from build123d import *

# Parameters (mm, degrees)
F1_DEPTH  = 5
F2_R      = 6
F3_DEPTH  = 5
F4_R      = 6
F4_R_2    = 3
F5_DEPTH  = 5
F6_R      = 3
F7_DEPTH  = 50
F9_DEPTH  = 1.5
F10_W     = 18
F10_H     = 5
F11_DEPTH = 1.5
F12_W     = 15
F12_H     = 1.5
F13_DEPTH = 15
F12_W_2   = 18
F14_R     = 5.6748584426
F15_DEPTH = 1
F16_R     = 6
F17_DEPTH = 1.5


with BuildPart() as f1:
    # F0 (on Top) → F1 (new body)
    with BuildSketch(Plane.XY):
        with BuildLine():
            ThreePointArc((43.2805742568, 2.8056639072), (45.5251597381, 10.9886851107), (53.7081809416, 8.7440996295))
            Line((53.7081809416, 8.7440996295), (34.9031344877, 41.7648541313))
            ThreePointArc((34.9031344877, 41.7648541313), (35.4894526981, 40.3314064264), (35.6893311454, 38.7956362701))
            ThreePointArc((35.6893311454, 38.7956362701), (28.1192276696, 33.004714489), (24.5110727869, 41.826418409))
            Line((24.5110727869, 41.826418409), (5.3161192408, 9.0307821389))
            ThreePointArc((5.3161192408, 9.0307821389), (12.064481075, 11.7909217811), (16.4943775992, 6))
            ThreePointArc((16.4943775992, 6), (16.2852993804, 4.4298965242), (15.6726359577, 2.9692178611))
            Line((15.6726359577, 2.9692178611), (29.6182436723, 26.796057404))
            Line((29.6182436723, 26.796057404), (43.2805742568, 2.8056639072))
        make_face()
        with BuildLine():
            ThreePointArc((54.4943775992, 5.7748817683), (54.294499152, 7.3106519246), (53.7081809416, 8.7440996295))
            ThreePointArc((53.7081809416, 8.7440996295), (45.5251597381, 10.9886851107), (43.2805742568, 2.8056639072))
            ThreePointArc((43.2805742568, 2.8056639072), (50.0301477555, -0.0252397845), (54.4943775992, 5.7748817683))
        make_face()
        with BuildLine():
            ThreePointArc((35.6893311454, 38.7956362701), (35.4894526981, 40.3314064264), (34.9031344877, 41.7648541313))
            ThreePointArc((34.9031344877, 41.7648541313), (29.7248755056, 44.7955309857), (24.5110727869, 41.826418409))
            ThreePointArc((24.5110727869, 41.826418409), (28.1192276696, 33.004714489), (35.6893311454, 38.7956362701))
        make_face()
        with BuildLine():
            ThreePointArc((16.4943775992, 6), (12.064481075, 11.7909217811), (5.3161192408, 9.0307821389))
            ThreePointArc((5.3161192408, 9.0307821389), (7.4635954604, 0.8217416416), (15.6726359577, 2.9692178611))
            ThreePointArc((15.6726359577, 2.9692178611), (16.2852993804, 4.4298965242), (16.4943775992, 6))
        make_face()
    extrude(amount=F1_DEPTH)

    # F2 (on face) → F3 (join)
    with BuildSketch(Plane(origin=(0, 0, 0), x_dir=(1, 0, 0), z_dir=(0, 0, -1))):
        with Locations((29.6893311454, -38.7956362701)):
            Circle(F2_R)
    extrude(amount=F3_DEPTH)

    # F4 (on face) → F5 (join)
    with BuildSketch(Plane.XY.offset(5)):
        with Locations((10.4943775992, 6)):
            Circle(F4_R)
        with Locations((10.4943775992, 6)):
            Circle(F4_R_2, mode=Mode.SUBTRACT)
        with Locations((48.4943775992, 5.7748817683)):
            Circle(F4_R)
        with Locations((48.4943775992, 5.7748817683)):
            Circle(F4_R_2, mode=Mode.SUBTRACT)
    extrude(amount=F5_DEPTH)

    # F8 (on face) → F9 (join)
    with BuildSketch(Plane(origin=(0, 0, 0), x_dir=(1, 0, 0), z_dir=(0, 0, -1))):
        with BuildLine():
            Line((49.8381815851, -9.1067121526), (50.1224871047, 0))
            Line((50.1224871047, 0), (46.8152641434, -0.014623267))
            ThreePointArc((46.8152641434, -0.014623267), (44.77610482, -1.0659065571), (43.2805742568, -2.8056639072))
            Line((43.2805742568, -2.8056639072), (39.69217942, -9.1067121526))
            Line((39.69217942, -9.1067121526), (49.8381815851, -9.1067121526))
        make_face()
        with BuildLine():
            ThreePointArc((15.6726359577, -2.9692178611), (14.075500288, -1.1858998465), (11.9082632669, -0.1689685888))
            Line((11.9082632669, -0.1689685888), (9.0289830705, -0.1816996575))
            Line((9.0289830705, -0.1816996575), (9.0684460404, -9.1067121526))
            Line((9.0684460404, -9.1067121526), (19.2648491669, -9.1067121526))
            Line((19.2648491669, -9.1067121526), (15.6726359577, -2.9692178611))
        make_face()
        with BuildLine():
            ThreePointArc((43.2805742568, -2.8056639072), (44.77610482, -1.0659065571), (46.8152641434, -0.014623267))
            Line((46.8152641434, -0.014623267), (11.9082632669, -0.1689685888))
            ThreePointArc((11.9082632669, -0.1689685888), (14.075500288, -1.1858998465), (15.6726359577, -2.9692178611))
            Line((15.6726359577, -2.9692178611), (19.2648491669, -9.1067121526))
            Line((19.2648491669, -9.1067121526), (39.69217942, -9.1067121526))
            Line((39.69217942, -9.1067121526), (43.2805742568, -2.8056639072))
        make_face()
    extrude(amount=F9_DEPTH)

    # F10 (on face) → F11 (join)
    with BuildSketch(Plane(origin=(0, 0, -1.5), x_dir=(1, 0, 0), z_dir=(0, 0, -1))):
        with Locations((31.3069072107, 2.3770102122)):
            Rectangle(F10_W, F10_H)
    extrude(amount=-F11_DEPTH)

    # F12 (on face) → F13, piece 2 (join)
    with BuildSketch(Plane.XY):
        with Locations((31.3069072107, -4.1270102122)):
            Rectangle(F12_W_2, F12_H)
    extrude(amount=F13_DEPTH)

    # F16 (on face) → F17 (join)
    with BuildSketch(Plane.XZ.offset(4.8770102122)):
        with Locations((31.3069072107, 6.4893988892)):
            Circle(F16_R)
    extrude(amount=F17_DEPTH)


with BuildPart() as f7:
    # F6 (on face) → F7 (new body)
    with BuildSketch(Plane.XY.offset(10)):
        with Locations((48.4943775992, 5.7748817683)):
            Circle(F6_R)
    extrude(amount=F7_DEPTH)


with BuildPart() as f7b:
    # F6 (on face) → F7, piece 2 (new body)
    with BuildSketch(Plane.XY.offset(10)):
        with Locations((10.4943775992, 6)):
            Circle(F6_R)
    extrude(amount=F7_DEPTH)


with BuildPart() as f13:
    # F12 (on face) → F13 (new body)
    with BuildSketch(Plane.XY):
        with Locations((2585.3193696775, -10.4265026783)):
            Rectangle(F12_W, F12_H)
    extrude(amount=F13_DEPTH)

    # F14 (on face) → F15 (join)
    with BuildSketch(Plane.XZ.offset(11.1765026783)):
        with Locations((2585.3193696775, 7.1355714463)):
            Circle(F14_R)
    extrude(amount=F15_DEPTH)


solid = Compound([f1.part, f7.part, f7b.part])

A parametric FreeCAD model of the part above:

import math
import FreeCAD as App
import Part
import Sketcher
from FreeCAD import Vector
Q = App.Units.Quantity

doc = App.newDocument("Part")
params = doc.addObject("Spreadsheet::Sheet", "Params")
for row, (alias, value) in enumerate([
    ("sketch1_radius", "6 mm"),
    ("sketch1_length", "38 mm"),
    ("pad1_length", "5 mm"),
    ("sketch2_diameter", "12 mm"),
    ("pad2_length", "5 mm"),
    ("sketch3_diameter", "12 mm"),
    ("sketch3_diameter2", "6 mm"),
    ("pad3_length", "5 mm"),
    ("pad4_length", "1.5 mm"),
    ("sketch5_width", "18 mm"),
    ("sketch5_height", "5 mm"),
    ("pad5_length", "1.5 mm"),
    ("sketch6_width", "18 mm"),
    ("sketch6_height", "1.5 mm"),
    ("pad6_length", "15 mm"),
    ("sketch7_diameter", "12 mm"),
    ("pad7_length", "1.5 mm"),
    ("sketch8_diameter", "6 mm"),
    ("pad8_length", "50 mm"),
    ("sketch9_diameter", "6 mm"),
    ("pad9_length", "50 mm"),
    ("sketch10_width", "15 mm"),
    ("sketch10_height", "1.5 mm"),
    ("pad10_length", "15 mm"),
    ("pad11_length", "1 mm"),
], start=1):
    params.set(f"A{row}", alias)
    params.set(f"B{row}", "=" + value)
    params.setAlias(f"B{row}", alias)

body = doc.addObject("PartDesign::Body", "Body")

sketch1 = doc.addObject("Sketcher::SketchObject", "Sketch")
body.addObject(sketch1)
sketch1.AttachmentSupport = (doc.XY_Plane, [""])
sketch1.MapMode = "FlatFace"
sketch1.addGeometry(Part.LineSegment(Vector(53.708181, 8.7441, 0), Vector(34.903134, 41.764854, 0)), False)
sketch1.addGeometry(Part.ArcOfCircle(Part.Circle(Vector(29.689331, 38.795636, 0), Vector(0, 0, 1), 6), math.radians(29.661155), math.radians(149.659994)), False)
sketch1.addGeometry(Part.LineSegment(Vector(24.511073, 41.826418, 0), Vector(5.316119, 9.030782, 0)), False)
sketch1.addGeometry(Part.ArcOfCircle(Part.Circle(Vector(10.494378, 6, 0), Vector(0, 0, 1), 6), math.radians(149.659994), math.radians(329.659994)), False)
sketch1.addGeometry(Part.LineSegment(Vector(15.672636, 2.969218, 0), Vector(29.618244, 26.796057, 0)), False)
sketch1.addGeometry(Part.LineSegment(Vector(29.618244, 26.796057, 0), Vector(43.280574, 2.805664, 0)), False)
sketch1.addGeometry(Part.ArcOfCircle(Part.Circle(Vector(48.494378, 5.774882, 0), Vector(0, 0, 1), 6), math.radians(-150.338845), math.radians(0)), False)
sketch1.addGeometry(Part.ArcOfCircle(Part.Circle(Vector(48.494378, 5.774882, 0), Vector(0, 0, 1), 6), math.radians(0), math.radians(29.661155)), False)
sketch1.addConstraint(Sketcher.Constraint("Tangent", 0, 2, 1, 1))
sketch1.addConstraint(Sketcher.Constraint("Tangent", 1, 2, 2, 1))
sketch1.addConstraint(Sketcher.Constraint("Tangent", 2, 2, 3, 1))
sketch1.addConstraint(Sketcher.Constraint("Tangent", 3, 2, 4, 1))
sketch1.addConstraint(Sketcher.Constraint("Coincident", 4, 2, 5, 1))
sketch1.addConstraint(Sketcher.Constraint("Tangent", 5, 2, 6, 1))
sketch1.addConstraint(Sketcher.Constraint("Tangent", 6, 2, 7, 1))
sketch1.addConstraint(Sketcher.Constraint("Tangent", 7, 2, 0, 1))
sketch1.addConstraint(Sketcher.Constraint("Equal", 1, 3))
sketch1.addConstraint(Sketcher.Constraint("Equal", 3, 6))
sketch1.addConstraint(Sketcher.Constraint("Equal", 6, 7))
sketch1.addConstraint(Sketcher.Constraint("Parallel", 2, 4))
sketch1.addConstraint(Sketcher.Constraint("Parallel", 0, 5))
sketch1.addConstraint(Sketcher.Constraint("Horizontal", 7, 3, 6, 2))
sketch1.addConstraint(Sketcher.Constraint("Equal", 0, 2))
sketch1.addConstraint(Sketcher.Constraint("Radius", 1, Q("6 mm")))
sketch1.addConstraint(Sketcher.Constraint("Distance", 0, Q("38 mm")))
sketch1.addConstraint(Sketcher.Constraint("DistanceY", -1, 1, 3, 3, Q("6 mm")))
sketch1.addConstraint(Sketcher.Constraint("DistanceX", 3, 3, 6, 3, Q("38 mm")))
sketch1.addConstraint(Sketcher.Constraint("Angle", 2, Q("-120.340006 deg")))
sketch1.addConstraint(Sketcher.Constraint("DistanceX", -1, 1, 1, 3, Q("29.689331 mm")))
sketch1.setExpression("Constraints[15]", "Params.sketch1_radius")
sketch1.setExpression("Constraints[16]", "Params.sketch1_length")
pad1 = doc.addObject("PartDesign::Pad", "Pad")
body.addObject(pad1)
pad1.Profile = sketch1
pad1.setExpression("Length", "Params.pad1_length")

sketch2 = doc.addObject("Sketcher::SketchObject", "Sketch001")
body.addObject(sketch2)
sketch2.AttachmentSupport = (doc.XY_Plane, [""])
sketch2.MapMode = "FlatFace"
sketch2.addGeometry(Part.Circle(Vector(29.689331, 38.795636, 0), Vector(0, 0, 1), 6), False)
sketch2.addConstraint(Sketcher.Constraint("Diameter", 0, Q("12 mm")))
sketch2.addConstraint(Sketcher.Constraint("DistanceX", -1, 1, 0, 3, Q("29.689331 mm")))
sketch2.addConstraint(Sketcher.Constraint("DistanceY", -1, 1, 0, 3, Q("38.795636 mm")))
sketch2.setExpression("Constraints[0]", "Params.sketch2_diameter")
pad2 = doc.addObject("PartDesign::Pad", "Pad001")
body.addObject(pad2)
pad2.Profile = sketch2
pad2.setExpression("Length", "Params.pad2_length")
pad2.Reversed = True

sketch3 = doc.addObject("Sketcher::SketchObject", "Sketch002")
body.addObject(sketch3)
sketch3.AttachmentSupport = (doc.XY_Plane, [""])
sketch3.MapMode = "FlatFace"
sketch3.AttachmentOffset = App.Placement(Vector(0, 0, 5), App.Rotation())
sketch3.addGeometry(Part.Circle(Vector(10.494378, 6, 0), Vector(0, 0, 1), 6), False)
sketch3.addGeometry(Part.Circle(Vector(10.494378, 6, 0), Vector(0, 0, 1), 3), False)
sketch3.addGeometry(Part.Circle(Vector(48.494378, 5.774882, 0), Vector(0, 0, 1), 6), False)
sketch3.addGeometry(Part.Circle(Vector(48.494378, 5.774882, 0), Vector(0, 0, 1), 3), False)
sketch3.addConstraint(Sketcher.Constraint("Coincident", 1, 3, 0, 3))
sketch3.addConstraint(Sketcher.Constraint("Coincident", 3, 3, 2, 3))
sketch3.addConstraint(Sketcher.Constraint("Equal", 0, 2))
sketch3.addConstraint(Sketcher.Constraint("Equal", 1, 3))
sketch3.addConstraint(Sketcher.Constraint("Diameter", 0, Q("12 mm")))
sketch3.addConstraint(Sketcher.Constraint("Diameter", 1, Q("6 mm")))
sketch3.addConstraint(Sketcher.Constraint("DistanceY", -1, 1, 0, 3, Q("6 mm")))
sketch3.addConstraint(Sketcher.Constraint("DistanceX", 0, 3, 2, 3, Q("38 mm")))
sketch3.addConstraint(Sketcher.Constraint("DistanceY", -1, 1, 2, 3, Q("5.774882 mm")))
sketch3.addConstraint(Sketcher.Constraint("DistanceX", -1, 1, 0, 3, Q("10.494378 mm")))
sketch3.setExpression("Constraints[4]", "Params.sketch3_diameter")
sketch3.setExpression("Constraints[5]", "Params.sketch3_diameter2")
pad3 = doc.addObject("PartDesign::Pad", "Pad002")
body.addObject(pad3)
pad3.Profile = sketch3
pad3.setExpression("Length", "Params.pad3_length")

sketch4 = doc.addObject("Sketcher::SketchObject", "Sketch003")
body.addObject(sketch4)
sketch4.AttachmentSupport = (doc.XY_Plane, [""])
sketch4.MapMode = "FlatFace"
sketch4.addGeometry(Part.LineSegment(Vector(49.838182, 9.106712, 0), Vector(50.122487, 0, 0)), False)
sketch4.addGeometry(Part.LineSegment(Vector(50.122487, 0, 0), Vector(46.815264, 0.014623, 0)), False)
sketch4.addGeometry(Part.LineSegment(Vector(46.815264, 0.014623, 0), Vector(11.908263, 0.168969, 0)), False)
sketch4.addGeometry(Part.LineSegment(Vector(11.908263, 0.168969, 0), Vector(9.028983, 0.1817, 0)), False)
sketch4.addGeometry(Part.LineSegment(Vector(9.028983, 0.1817, 0), Vector(9.068446, 9.106712, 0)), False)
sketch4.addGeometry(Part.LineSegment(Vector(9.068446, 9.106712, 0), Vector(49.838182, 9.106712, 0)), False)
sketch4.addConstraint(Sketcher.Constraint("Coincident", 0, 2, 1, 1))
sketch4.addConstraint(Sketcher.Constraint("Coincident", 1, 2, 2, 1))
sketch4.addConstraint(Sketcher.Constraint("Coincident", 2, 2, 3, 1))
sketch4.addConstraint(Sketcher.Constraint("Coincident", 3, 2, 4, 1))
sketch4.addConstraint(Sketcher.Constraint("Coincident", 4, 2, 5, 1))
sketch4.addConstraint(Sketcher.Constraint("Coincident", 5, 2, 0, 1))
sketch4.addConstraint(Sketcher.Constraint("Horizontal", 5))
sketch4.addConstraint(Sketcher.Constraint("PointOnObject", 0, 2, -1))
sketch4.addConstraint(Sketcher.Constraint("Parallel", 1, 2))
sketch4.addConstraint(Sketcher.Constraint("Parallel", 2, 3))
sketch4.addConstraint(Sketcher.Constraint("Perpendicular", 3, 4))
sketch4.addConstraint(Sketcher.Constraint("DistanceX", 2, 2, 1, 2, Q("34.907001 mm")))
sketch4.addConstraint(Sketcher.Constraint("Distance", 4, Q("8.9251 mm")))
sketch4.addConstraint(Sketcher.Constraint("DistanceY", -1, 1, 3, 2, Q("0.1817 mm")))
sketch4.addConstraint(Sketcher.Constraint("DistanceX", 3, 2, 5, 2, Q("40.809199 mm")))
sketch4.addConstraint(Sketcher.Constraint("Distance", 0, Q("9.111149 mm")))
sketch4.addConstraint(Sketcher.Constraint("Distance", 3, Q("2.879308 mm")))
sketch4.addConstraint(Sketcher.Constraint("DistanceX", -1, 1, 5, 2, Q("49.838182 mm")))
pad4 = doc.addObject("PartDesign::Pad", "Pad003")
body.addObject(pad4)
pad4.Profile = sketch4
pad4.setExpression("Length", "Params.pad4_length")
pad4.Reversed = True

sketch5 = doc.addObject("Sketcher::SketchObject", "Sketch004")
body.addObject(sketch5)
sketch5.AttachmentSupport = (doc.XY_Plane, [""])
sketch5.MapMode = "FlatFace"
sketch5.AttachmentOffset = App.Placement(Vector(0, 0, -1.5), App.Rotation())
sketch5.addGeometry(Part.LineSegment(Vector(22.306907, -4.87701, 0), Vector(22.306907, 0.12299, 0)), False)
sketch5.addGeometry(Part.LineSegment(Vector(22.306907, 0.12299, 0), Vector(40.306907, 0.12299, 0)), False)
sketch5.addGeometry(Part.LineSegment(Vector(40.306907, 0.12299, 0), Vector(40.306907, -4.87701, 0)), False)
sketch5.addGeometry(Part.LineSegment(Vector(40.306907, -4.87701, 0), Vector(22.306907, -4.87701, 0)), False)
sketch5.addConstraint(Sketcher.Constraint("Coincident", 0, 2, 1, 1))
sketch5.addConstraint(Sketcher.Constraint("Coincident", 1, 2, 2, 1))
sketch5.addConstraint(Sketcher.Constraint("Coincident", 2, 2, 3, 1))
sketch5.addConstraint(Sketcher.Constraint("Coincident", 3, 2, 0, 1))
sketch5.addConstraint(Sketcher.Constraint("Vertical", 0))
sketch5.addConstraint(Sketcher.Constraint("Horizontal", 1))
sketch5.addConstraint(Sketcher.Constraint("Vertical", 2))
sketch5.addConstraint(Sketcher.Constraint("Horizontal", 3))
sketch5.addConstraint(Sketcher.Constraint("DistanceX", 1, 1, 1, 2, Q("18 mm")))
sketch5.addConstraint(Sketcher.Constraint("DistanceY", 0, 1, 0, 2, Q("5 mm")))
sketch5.addConstraint(Sketcher.Constraint("DistanceY", -1, 1, 0, 2, Q("0.12299 mm")))
sketch5.addConstraint(Sketcher.Constraint("DistanceX", -1, 1, 0, 2, Q("22.306907 mm")))
sketch5.setExpression("Constraints[8]", "Params.sketch5_width")
sketch5.setExpression("Constraints[9]", "Params.sketch5_height")
pad5 = doc.addObject("PartDesign::Pad", "Pad004")
body.addObject(pad5)
pad5.Profile = sketch5
pad5.setExpression("Length", "Params.pad5_length")

sketch6 = doc.addObject("Sketcher::SketchObject", "Sketch005")
body.addObject(sketch6)
sketch6.AttachmentSupport = (doc.XY_Plane, [""])
sketch6.MapMode = "FlatFace"
sketch6.addGeometry(Part.LineSegment(Vector(22.306907, -3.37701, 0), Vector(22.306907, -4.87701, 0)), False)
sketch6.addGeometry(Part.LineSegment(Vector(22.306907, -4.87701, 0), Vector(40.306907, -4.87701, 0)), False)
sketch6.addGeometry(Part.LineSegment(Vector(40.306907, -4.87701, 0), Vector(40.306907, -3.37701, 0)), False)
sketch6.addGeometry(Part.LineSegment(Vector(40.306907, -3.37701, 0), Vector(22.306907, -3.37701, 0)), False)
sketch6.addConstraint(Sketcher.Constraint("Coincident", 0, 2, 1, 1))
sketch6.addConstraint(Sketcher.Constraint("Coincident", 1, 2, 2, 1))
sketch6.addConstraint(Sketcher.Constraint("Coincident", 2, 2, 3, 1))
sketch6.addConstraint(Sketcher.Constraint("Coincident", 3, 2, 0, 1))
sketch6.addConstraint(Sketcher.Constraint("Vertical", 0))
sketch6.addConstraint(Sketcher.Constraint("Horizontal", 1))
sketch6.addConstraint(Sketcher.Constraint("Vertical", 2))
sketch6.addConstraint(Sketcher.Constraint("Horizontal", 3))
sketch6.addConstraint(Sketcher.Constraint("DistanceX", 1, 1, 1, 2, Q("18 mm")))
sketch6.addConstraint(Sketcher.Constraint("DistanceY", 0, 2, 0, 1, Q("1.5 mm")))
sketch6.addConstraint(Sketcher.Constraint("DistanceY", 0, 2, -1, 1, Q("4.87701 mm")))
sketch6.addConstraint(Sketcher.Constraint("DistanceX", -1, 1, 0, 2, Q("22.306907 mm")))
sketch6.setExpression("Constraints[8]", "Params.sketch6_width")
sketch6.setExpression("Constraints[9]", "Params.sketch6_height")
pad6 = doc.addObject("PartDesign::Pad", "Pad005")
body.addObject(pad6)
pad6.Profile = sketch6
pad6.setExpression("Length", "Params.pad6_length")

sketch7 = doc.addObject("Sketcher::SketchObject", "Sketch006")
body.addObject(sketch7)
sketch7.AttachmentSupport = (doc.XZ_Plane, [""])
sketch7.MapMode = "FlatFace"
sketch7.AttachmentOffset = App.Placement(Vector(0, 0, 4.87701), App.Rotation())
sketch7.addGeometry(Part.Circle(Vector(31.306907, 6.489399, 0), Vector(0, 0, 1), 6), False)
sketch7.addConstraint(Sketcher.Constraint("Diameter", 0, Q("12 mm")))
sketch7.addConstraint(Sketcher.Constraint("DistanceY", -1, 1, 0, 3, Q("6.489399 mm")))
sketch7.addConstraint(Sketcher.Constraint("DistanceX", -1, 1, 0, 3, Q("31.306907 mm")))
sketch7.setExpression("Constraints[0]", "Params.sketch7_diameter")
pad7 = doc.addObject("PartDesign::Pad", "Pad006")
body.addObject(pad7)
pad7.Profile = sketch7
pad7.setExpression("Length", "Params.pad7_length")
body2 = doc.addObject("PartDesign::Body", "Body001")

sketch8 = doc.addObject("Sketcher::SketchObject", "Sketch007")
body2.addObject(sketch8)
sketch8.AttachmentSupport = (doc.getObject("XY_Plane001"), [""])
sketch8.MapMode = "FlatFace"
sketch8.AttachmentOffset = App.Placement(Vector(0, 0, 10), App.Rotation())
sketch8.addGeometry(Part.Circle(Vector(48.494378, 5.774882, 0), Vector(0, 0, 1), 3), False)
sketch8.addConstraint(Sketcher.Constraint("Diameter", 0, Q("6 mm")))
sketch8.addConstraint(Sketcher.Constraint("DistanceY", -1, 1, 0, 3, Q("5.774882 mm")))
sketch8.addConstraint(Sketcher.Constraint("DistanceX", -1, 1, 0, 3, Q("48.494378 mm")))
sketch8.setExpression("Constraints[0]", "Params.sketch8_diameter")
pad8 = doc.addObject("PartDesign::Pad", "Pad007")
body2.addObject(pad8)
pad8.Profile = sketch8
pad8.setExpression("Length", "Params.pad8_length")
body3 = doc.addObject("PartDesign::Body", "Body002")

sketch9 = doc.addObject("Sketcher::SketchObject", "Sketch008")
body3.addObject(sketch9)
sketch9.AttachmentSupport = (doc.getObject("XY_Plane002"), [""])
sketch9.MapMode = "FlatFace"
sketch9.AttachmentOffset = App.Placement(Vector(0, 0, 10), App.Rotation())
sketch9.addGeometry(Part.Circle(Vector(10.494378, 6, 0), Vector(0, 0, 1), 3), False)
sketch9.addConstraint(Sketcher.Constraint("Diameter", 0, Q("6 mm")))
sketch9.addConstraint(Sketcher.Constraint("DistanceY", -1, 1, 0, 3, Q("6 mm")))
sketch9.addConstraint(Sketcher.Constraint("DistanceX", -1, 1, 0, 3, Q("10.494378 mm")))
sketch9.setExpression("Constraints[0]", "Params.sketch9_diameter")
pad9 = doc.addObject("PartDesign::Pad", "Pad008")
body3.addObject(pad9)
pad9.Profile = sketch9
pad9.setExpression("Length", "Params.pad9_length")
body4 = doc.addObject("PartDesign::Body", "Body003")

sketch10 = doc.addObject("Sketcher::SketchObject", "Sketch009")
body4.addObject(sketch10)
sketch10.AttachmentSupport = (doc.getObject("XY_Plane003"), [""])
sketch10.MapMode = "FlatFace"
sketch10.addGeometry(Part.LineSegment(Vector(2577.81937, -9.676503, 0), Vector(2577.81937, -11.176503, 0)), False)
sketch10.addGeometry(Part.LineSegment(Vector(2577.81937, -11.176503, 0), Vector(2592.81937, -11.176503, 0)), False)
sketch10.addGeometry(Part.LineSegment(Vector(2592.81937, -11.176503, 0), Vector(2592.81937, -9.676503, 0)), False)
sketch10.addGeometry(Part.LineSegment(Vector(2592.81937, -9.676503, 0), Vector(2577.81937, -9.676503, 0)), False)
sketch10.addConstraint(Sketcher.Constraint("Coincident", 0, 2, 1, 1))
sketch10.addConstraint(Sketcher.Constraint("Coincident", 1, 2, 2, 1))
sketch10.addConstraint(Sketcher.Constraint("Coincident", 2, 2, 3, 1))
sketch10.addConstraint(Sketcher.Constraint("Coincident", 3, 2, 0, 1))
sketch10.addConstraint(Sketcher.Constraint("Vertical", 0))
sketch10.addConstraint(Sketcher.Constraint("Horizontal", 1))
sketch10.addConstraint(Sketcher.Constraint("Vertical", 2))
sketch10.addConstraint(Sketcher.Constraint("Horizontal", 3))
sketch10.addConstraint(Sketcher.Constraint("DistanceX", 1, 1, 1, 2, Q("15 mm")))
sketch10.addConstraint(Sketcher.Constraint("DistanceY", 0, 2, 0, 1, Q("1.5 mm")))
sketch10.addConstraint(Sketcher.Constraint("DistanceX", -1, 1, 0, 2, Q("2577.81937 mm")))
sketch10.addConstraint(Sketcher.Constraint("DistanceY", 0, 2, -1, 1, Q("11.176503 mm")))
sketch10.setExpression("Constraints[8]", "Params.sketch10_width")
sketch10.setExpression("Constraints[9]", "Params.sketch10_height")
pad10 = doc.addObject("PartDesign::Pad", "Pad009")
body4.addObject(pad10)
pad10.Profile = sketch10
pad10.setExpression("Length", "Params.pad10_length")

sketch11 = doc.addObject("Sketcher::SketchObject", "Sketch010")
body4.addObject(sketch11)
sketch11.AttachmentSupport = (doc.getObject("XZ_Plane003"), [""])
sketch11.MapMode = "FlatFace"
sketch11.AttachmentOffset = App.Placement(Vector(0, 0, 11.176503), App.Rotation())
sketch11.addGeometry(Part.Circle(Vector(2585.31937, 7.135571, 0), Vector(0, 0, 1), 5.674858), False)
sketch11.addConstraint(Sketcher.Constraint("Diameter", 0, Q("11.349717 mm")))
sketch11.addConstraint(Sketcher.Constraint("DistanceX", -1, 1, 0, 3, Q("2585.31937 mm")))
sketch11.addConstraint(Sketcher.Constraint("DistanceY", -1, 1, 0, 3, Q("7.135571 mm")))
pad11 = doc.addObject("PartDesign::Pad", "Pad010")
body4.addObject(pad11)
pad11.Profile = sketch11
pad11.setExpression("Length", "Params.pad11_length")
body4.Visibility = False

doc.recompute()
